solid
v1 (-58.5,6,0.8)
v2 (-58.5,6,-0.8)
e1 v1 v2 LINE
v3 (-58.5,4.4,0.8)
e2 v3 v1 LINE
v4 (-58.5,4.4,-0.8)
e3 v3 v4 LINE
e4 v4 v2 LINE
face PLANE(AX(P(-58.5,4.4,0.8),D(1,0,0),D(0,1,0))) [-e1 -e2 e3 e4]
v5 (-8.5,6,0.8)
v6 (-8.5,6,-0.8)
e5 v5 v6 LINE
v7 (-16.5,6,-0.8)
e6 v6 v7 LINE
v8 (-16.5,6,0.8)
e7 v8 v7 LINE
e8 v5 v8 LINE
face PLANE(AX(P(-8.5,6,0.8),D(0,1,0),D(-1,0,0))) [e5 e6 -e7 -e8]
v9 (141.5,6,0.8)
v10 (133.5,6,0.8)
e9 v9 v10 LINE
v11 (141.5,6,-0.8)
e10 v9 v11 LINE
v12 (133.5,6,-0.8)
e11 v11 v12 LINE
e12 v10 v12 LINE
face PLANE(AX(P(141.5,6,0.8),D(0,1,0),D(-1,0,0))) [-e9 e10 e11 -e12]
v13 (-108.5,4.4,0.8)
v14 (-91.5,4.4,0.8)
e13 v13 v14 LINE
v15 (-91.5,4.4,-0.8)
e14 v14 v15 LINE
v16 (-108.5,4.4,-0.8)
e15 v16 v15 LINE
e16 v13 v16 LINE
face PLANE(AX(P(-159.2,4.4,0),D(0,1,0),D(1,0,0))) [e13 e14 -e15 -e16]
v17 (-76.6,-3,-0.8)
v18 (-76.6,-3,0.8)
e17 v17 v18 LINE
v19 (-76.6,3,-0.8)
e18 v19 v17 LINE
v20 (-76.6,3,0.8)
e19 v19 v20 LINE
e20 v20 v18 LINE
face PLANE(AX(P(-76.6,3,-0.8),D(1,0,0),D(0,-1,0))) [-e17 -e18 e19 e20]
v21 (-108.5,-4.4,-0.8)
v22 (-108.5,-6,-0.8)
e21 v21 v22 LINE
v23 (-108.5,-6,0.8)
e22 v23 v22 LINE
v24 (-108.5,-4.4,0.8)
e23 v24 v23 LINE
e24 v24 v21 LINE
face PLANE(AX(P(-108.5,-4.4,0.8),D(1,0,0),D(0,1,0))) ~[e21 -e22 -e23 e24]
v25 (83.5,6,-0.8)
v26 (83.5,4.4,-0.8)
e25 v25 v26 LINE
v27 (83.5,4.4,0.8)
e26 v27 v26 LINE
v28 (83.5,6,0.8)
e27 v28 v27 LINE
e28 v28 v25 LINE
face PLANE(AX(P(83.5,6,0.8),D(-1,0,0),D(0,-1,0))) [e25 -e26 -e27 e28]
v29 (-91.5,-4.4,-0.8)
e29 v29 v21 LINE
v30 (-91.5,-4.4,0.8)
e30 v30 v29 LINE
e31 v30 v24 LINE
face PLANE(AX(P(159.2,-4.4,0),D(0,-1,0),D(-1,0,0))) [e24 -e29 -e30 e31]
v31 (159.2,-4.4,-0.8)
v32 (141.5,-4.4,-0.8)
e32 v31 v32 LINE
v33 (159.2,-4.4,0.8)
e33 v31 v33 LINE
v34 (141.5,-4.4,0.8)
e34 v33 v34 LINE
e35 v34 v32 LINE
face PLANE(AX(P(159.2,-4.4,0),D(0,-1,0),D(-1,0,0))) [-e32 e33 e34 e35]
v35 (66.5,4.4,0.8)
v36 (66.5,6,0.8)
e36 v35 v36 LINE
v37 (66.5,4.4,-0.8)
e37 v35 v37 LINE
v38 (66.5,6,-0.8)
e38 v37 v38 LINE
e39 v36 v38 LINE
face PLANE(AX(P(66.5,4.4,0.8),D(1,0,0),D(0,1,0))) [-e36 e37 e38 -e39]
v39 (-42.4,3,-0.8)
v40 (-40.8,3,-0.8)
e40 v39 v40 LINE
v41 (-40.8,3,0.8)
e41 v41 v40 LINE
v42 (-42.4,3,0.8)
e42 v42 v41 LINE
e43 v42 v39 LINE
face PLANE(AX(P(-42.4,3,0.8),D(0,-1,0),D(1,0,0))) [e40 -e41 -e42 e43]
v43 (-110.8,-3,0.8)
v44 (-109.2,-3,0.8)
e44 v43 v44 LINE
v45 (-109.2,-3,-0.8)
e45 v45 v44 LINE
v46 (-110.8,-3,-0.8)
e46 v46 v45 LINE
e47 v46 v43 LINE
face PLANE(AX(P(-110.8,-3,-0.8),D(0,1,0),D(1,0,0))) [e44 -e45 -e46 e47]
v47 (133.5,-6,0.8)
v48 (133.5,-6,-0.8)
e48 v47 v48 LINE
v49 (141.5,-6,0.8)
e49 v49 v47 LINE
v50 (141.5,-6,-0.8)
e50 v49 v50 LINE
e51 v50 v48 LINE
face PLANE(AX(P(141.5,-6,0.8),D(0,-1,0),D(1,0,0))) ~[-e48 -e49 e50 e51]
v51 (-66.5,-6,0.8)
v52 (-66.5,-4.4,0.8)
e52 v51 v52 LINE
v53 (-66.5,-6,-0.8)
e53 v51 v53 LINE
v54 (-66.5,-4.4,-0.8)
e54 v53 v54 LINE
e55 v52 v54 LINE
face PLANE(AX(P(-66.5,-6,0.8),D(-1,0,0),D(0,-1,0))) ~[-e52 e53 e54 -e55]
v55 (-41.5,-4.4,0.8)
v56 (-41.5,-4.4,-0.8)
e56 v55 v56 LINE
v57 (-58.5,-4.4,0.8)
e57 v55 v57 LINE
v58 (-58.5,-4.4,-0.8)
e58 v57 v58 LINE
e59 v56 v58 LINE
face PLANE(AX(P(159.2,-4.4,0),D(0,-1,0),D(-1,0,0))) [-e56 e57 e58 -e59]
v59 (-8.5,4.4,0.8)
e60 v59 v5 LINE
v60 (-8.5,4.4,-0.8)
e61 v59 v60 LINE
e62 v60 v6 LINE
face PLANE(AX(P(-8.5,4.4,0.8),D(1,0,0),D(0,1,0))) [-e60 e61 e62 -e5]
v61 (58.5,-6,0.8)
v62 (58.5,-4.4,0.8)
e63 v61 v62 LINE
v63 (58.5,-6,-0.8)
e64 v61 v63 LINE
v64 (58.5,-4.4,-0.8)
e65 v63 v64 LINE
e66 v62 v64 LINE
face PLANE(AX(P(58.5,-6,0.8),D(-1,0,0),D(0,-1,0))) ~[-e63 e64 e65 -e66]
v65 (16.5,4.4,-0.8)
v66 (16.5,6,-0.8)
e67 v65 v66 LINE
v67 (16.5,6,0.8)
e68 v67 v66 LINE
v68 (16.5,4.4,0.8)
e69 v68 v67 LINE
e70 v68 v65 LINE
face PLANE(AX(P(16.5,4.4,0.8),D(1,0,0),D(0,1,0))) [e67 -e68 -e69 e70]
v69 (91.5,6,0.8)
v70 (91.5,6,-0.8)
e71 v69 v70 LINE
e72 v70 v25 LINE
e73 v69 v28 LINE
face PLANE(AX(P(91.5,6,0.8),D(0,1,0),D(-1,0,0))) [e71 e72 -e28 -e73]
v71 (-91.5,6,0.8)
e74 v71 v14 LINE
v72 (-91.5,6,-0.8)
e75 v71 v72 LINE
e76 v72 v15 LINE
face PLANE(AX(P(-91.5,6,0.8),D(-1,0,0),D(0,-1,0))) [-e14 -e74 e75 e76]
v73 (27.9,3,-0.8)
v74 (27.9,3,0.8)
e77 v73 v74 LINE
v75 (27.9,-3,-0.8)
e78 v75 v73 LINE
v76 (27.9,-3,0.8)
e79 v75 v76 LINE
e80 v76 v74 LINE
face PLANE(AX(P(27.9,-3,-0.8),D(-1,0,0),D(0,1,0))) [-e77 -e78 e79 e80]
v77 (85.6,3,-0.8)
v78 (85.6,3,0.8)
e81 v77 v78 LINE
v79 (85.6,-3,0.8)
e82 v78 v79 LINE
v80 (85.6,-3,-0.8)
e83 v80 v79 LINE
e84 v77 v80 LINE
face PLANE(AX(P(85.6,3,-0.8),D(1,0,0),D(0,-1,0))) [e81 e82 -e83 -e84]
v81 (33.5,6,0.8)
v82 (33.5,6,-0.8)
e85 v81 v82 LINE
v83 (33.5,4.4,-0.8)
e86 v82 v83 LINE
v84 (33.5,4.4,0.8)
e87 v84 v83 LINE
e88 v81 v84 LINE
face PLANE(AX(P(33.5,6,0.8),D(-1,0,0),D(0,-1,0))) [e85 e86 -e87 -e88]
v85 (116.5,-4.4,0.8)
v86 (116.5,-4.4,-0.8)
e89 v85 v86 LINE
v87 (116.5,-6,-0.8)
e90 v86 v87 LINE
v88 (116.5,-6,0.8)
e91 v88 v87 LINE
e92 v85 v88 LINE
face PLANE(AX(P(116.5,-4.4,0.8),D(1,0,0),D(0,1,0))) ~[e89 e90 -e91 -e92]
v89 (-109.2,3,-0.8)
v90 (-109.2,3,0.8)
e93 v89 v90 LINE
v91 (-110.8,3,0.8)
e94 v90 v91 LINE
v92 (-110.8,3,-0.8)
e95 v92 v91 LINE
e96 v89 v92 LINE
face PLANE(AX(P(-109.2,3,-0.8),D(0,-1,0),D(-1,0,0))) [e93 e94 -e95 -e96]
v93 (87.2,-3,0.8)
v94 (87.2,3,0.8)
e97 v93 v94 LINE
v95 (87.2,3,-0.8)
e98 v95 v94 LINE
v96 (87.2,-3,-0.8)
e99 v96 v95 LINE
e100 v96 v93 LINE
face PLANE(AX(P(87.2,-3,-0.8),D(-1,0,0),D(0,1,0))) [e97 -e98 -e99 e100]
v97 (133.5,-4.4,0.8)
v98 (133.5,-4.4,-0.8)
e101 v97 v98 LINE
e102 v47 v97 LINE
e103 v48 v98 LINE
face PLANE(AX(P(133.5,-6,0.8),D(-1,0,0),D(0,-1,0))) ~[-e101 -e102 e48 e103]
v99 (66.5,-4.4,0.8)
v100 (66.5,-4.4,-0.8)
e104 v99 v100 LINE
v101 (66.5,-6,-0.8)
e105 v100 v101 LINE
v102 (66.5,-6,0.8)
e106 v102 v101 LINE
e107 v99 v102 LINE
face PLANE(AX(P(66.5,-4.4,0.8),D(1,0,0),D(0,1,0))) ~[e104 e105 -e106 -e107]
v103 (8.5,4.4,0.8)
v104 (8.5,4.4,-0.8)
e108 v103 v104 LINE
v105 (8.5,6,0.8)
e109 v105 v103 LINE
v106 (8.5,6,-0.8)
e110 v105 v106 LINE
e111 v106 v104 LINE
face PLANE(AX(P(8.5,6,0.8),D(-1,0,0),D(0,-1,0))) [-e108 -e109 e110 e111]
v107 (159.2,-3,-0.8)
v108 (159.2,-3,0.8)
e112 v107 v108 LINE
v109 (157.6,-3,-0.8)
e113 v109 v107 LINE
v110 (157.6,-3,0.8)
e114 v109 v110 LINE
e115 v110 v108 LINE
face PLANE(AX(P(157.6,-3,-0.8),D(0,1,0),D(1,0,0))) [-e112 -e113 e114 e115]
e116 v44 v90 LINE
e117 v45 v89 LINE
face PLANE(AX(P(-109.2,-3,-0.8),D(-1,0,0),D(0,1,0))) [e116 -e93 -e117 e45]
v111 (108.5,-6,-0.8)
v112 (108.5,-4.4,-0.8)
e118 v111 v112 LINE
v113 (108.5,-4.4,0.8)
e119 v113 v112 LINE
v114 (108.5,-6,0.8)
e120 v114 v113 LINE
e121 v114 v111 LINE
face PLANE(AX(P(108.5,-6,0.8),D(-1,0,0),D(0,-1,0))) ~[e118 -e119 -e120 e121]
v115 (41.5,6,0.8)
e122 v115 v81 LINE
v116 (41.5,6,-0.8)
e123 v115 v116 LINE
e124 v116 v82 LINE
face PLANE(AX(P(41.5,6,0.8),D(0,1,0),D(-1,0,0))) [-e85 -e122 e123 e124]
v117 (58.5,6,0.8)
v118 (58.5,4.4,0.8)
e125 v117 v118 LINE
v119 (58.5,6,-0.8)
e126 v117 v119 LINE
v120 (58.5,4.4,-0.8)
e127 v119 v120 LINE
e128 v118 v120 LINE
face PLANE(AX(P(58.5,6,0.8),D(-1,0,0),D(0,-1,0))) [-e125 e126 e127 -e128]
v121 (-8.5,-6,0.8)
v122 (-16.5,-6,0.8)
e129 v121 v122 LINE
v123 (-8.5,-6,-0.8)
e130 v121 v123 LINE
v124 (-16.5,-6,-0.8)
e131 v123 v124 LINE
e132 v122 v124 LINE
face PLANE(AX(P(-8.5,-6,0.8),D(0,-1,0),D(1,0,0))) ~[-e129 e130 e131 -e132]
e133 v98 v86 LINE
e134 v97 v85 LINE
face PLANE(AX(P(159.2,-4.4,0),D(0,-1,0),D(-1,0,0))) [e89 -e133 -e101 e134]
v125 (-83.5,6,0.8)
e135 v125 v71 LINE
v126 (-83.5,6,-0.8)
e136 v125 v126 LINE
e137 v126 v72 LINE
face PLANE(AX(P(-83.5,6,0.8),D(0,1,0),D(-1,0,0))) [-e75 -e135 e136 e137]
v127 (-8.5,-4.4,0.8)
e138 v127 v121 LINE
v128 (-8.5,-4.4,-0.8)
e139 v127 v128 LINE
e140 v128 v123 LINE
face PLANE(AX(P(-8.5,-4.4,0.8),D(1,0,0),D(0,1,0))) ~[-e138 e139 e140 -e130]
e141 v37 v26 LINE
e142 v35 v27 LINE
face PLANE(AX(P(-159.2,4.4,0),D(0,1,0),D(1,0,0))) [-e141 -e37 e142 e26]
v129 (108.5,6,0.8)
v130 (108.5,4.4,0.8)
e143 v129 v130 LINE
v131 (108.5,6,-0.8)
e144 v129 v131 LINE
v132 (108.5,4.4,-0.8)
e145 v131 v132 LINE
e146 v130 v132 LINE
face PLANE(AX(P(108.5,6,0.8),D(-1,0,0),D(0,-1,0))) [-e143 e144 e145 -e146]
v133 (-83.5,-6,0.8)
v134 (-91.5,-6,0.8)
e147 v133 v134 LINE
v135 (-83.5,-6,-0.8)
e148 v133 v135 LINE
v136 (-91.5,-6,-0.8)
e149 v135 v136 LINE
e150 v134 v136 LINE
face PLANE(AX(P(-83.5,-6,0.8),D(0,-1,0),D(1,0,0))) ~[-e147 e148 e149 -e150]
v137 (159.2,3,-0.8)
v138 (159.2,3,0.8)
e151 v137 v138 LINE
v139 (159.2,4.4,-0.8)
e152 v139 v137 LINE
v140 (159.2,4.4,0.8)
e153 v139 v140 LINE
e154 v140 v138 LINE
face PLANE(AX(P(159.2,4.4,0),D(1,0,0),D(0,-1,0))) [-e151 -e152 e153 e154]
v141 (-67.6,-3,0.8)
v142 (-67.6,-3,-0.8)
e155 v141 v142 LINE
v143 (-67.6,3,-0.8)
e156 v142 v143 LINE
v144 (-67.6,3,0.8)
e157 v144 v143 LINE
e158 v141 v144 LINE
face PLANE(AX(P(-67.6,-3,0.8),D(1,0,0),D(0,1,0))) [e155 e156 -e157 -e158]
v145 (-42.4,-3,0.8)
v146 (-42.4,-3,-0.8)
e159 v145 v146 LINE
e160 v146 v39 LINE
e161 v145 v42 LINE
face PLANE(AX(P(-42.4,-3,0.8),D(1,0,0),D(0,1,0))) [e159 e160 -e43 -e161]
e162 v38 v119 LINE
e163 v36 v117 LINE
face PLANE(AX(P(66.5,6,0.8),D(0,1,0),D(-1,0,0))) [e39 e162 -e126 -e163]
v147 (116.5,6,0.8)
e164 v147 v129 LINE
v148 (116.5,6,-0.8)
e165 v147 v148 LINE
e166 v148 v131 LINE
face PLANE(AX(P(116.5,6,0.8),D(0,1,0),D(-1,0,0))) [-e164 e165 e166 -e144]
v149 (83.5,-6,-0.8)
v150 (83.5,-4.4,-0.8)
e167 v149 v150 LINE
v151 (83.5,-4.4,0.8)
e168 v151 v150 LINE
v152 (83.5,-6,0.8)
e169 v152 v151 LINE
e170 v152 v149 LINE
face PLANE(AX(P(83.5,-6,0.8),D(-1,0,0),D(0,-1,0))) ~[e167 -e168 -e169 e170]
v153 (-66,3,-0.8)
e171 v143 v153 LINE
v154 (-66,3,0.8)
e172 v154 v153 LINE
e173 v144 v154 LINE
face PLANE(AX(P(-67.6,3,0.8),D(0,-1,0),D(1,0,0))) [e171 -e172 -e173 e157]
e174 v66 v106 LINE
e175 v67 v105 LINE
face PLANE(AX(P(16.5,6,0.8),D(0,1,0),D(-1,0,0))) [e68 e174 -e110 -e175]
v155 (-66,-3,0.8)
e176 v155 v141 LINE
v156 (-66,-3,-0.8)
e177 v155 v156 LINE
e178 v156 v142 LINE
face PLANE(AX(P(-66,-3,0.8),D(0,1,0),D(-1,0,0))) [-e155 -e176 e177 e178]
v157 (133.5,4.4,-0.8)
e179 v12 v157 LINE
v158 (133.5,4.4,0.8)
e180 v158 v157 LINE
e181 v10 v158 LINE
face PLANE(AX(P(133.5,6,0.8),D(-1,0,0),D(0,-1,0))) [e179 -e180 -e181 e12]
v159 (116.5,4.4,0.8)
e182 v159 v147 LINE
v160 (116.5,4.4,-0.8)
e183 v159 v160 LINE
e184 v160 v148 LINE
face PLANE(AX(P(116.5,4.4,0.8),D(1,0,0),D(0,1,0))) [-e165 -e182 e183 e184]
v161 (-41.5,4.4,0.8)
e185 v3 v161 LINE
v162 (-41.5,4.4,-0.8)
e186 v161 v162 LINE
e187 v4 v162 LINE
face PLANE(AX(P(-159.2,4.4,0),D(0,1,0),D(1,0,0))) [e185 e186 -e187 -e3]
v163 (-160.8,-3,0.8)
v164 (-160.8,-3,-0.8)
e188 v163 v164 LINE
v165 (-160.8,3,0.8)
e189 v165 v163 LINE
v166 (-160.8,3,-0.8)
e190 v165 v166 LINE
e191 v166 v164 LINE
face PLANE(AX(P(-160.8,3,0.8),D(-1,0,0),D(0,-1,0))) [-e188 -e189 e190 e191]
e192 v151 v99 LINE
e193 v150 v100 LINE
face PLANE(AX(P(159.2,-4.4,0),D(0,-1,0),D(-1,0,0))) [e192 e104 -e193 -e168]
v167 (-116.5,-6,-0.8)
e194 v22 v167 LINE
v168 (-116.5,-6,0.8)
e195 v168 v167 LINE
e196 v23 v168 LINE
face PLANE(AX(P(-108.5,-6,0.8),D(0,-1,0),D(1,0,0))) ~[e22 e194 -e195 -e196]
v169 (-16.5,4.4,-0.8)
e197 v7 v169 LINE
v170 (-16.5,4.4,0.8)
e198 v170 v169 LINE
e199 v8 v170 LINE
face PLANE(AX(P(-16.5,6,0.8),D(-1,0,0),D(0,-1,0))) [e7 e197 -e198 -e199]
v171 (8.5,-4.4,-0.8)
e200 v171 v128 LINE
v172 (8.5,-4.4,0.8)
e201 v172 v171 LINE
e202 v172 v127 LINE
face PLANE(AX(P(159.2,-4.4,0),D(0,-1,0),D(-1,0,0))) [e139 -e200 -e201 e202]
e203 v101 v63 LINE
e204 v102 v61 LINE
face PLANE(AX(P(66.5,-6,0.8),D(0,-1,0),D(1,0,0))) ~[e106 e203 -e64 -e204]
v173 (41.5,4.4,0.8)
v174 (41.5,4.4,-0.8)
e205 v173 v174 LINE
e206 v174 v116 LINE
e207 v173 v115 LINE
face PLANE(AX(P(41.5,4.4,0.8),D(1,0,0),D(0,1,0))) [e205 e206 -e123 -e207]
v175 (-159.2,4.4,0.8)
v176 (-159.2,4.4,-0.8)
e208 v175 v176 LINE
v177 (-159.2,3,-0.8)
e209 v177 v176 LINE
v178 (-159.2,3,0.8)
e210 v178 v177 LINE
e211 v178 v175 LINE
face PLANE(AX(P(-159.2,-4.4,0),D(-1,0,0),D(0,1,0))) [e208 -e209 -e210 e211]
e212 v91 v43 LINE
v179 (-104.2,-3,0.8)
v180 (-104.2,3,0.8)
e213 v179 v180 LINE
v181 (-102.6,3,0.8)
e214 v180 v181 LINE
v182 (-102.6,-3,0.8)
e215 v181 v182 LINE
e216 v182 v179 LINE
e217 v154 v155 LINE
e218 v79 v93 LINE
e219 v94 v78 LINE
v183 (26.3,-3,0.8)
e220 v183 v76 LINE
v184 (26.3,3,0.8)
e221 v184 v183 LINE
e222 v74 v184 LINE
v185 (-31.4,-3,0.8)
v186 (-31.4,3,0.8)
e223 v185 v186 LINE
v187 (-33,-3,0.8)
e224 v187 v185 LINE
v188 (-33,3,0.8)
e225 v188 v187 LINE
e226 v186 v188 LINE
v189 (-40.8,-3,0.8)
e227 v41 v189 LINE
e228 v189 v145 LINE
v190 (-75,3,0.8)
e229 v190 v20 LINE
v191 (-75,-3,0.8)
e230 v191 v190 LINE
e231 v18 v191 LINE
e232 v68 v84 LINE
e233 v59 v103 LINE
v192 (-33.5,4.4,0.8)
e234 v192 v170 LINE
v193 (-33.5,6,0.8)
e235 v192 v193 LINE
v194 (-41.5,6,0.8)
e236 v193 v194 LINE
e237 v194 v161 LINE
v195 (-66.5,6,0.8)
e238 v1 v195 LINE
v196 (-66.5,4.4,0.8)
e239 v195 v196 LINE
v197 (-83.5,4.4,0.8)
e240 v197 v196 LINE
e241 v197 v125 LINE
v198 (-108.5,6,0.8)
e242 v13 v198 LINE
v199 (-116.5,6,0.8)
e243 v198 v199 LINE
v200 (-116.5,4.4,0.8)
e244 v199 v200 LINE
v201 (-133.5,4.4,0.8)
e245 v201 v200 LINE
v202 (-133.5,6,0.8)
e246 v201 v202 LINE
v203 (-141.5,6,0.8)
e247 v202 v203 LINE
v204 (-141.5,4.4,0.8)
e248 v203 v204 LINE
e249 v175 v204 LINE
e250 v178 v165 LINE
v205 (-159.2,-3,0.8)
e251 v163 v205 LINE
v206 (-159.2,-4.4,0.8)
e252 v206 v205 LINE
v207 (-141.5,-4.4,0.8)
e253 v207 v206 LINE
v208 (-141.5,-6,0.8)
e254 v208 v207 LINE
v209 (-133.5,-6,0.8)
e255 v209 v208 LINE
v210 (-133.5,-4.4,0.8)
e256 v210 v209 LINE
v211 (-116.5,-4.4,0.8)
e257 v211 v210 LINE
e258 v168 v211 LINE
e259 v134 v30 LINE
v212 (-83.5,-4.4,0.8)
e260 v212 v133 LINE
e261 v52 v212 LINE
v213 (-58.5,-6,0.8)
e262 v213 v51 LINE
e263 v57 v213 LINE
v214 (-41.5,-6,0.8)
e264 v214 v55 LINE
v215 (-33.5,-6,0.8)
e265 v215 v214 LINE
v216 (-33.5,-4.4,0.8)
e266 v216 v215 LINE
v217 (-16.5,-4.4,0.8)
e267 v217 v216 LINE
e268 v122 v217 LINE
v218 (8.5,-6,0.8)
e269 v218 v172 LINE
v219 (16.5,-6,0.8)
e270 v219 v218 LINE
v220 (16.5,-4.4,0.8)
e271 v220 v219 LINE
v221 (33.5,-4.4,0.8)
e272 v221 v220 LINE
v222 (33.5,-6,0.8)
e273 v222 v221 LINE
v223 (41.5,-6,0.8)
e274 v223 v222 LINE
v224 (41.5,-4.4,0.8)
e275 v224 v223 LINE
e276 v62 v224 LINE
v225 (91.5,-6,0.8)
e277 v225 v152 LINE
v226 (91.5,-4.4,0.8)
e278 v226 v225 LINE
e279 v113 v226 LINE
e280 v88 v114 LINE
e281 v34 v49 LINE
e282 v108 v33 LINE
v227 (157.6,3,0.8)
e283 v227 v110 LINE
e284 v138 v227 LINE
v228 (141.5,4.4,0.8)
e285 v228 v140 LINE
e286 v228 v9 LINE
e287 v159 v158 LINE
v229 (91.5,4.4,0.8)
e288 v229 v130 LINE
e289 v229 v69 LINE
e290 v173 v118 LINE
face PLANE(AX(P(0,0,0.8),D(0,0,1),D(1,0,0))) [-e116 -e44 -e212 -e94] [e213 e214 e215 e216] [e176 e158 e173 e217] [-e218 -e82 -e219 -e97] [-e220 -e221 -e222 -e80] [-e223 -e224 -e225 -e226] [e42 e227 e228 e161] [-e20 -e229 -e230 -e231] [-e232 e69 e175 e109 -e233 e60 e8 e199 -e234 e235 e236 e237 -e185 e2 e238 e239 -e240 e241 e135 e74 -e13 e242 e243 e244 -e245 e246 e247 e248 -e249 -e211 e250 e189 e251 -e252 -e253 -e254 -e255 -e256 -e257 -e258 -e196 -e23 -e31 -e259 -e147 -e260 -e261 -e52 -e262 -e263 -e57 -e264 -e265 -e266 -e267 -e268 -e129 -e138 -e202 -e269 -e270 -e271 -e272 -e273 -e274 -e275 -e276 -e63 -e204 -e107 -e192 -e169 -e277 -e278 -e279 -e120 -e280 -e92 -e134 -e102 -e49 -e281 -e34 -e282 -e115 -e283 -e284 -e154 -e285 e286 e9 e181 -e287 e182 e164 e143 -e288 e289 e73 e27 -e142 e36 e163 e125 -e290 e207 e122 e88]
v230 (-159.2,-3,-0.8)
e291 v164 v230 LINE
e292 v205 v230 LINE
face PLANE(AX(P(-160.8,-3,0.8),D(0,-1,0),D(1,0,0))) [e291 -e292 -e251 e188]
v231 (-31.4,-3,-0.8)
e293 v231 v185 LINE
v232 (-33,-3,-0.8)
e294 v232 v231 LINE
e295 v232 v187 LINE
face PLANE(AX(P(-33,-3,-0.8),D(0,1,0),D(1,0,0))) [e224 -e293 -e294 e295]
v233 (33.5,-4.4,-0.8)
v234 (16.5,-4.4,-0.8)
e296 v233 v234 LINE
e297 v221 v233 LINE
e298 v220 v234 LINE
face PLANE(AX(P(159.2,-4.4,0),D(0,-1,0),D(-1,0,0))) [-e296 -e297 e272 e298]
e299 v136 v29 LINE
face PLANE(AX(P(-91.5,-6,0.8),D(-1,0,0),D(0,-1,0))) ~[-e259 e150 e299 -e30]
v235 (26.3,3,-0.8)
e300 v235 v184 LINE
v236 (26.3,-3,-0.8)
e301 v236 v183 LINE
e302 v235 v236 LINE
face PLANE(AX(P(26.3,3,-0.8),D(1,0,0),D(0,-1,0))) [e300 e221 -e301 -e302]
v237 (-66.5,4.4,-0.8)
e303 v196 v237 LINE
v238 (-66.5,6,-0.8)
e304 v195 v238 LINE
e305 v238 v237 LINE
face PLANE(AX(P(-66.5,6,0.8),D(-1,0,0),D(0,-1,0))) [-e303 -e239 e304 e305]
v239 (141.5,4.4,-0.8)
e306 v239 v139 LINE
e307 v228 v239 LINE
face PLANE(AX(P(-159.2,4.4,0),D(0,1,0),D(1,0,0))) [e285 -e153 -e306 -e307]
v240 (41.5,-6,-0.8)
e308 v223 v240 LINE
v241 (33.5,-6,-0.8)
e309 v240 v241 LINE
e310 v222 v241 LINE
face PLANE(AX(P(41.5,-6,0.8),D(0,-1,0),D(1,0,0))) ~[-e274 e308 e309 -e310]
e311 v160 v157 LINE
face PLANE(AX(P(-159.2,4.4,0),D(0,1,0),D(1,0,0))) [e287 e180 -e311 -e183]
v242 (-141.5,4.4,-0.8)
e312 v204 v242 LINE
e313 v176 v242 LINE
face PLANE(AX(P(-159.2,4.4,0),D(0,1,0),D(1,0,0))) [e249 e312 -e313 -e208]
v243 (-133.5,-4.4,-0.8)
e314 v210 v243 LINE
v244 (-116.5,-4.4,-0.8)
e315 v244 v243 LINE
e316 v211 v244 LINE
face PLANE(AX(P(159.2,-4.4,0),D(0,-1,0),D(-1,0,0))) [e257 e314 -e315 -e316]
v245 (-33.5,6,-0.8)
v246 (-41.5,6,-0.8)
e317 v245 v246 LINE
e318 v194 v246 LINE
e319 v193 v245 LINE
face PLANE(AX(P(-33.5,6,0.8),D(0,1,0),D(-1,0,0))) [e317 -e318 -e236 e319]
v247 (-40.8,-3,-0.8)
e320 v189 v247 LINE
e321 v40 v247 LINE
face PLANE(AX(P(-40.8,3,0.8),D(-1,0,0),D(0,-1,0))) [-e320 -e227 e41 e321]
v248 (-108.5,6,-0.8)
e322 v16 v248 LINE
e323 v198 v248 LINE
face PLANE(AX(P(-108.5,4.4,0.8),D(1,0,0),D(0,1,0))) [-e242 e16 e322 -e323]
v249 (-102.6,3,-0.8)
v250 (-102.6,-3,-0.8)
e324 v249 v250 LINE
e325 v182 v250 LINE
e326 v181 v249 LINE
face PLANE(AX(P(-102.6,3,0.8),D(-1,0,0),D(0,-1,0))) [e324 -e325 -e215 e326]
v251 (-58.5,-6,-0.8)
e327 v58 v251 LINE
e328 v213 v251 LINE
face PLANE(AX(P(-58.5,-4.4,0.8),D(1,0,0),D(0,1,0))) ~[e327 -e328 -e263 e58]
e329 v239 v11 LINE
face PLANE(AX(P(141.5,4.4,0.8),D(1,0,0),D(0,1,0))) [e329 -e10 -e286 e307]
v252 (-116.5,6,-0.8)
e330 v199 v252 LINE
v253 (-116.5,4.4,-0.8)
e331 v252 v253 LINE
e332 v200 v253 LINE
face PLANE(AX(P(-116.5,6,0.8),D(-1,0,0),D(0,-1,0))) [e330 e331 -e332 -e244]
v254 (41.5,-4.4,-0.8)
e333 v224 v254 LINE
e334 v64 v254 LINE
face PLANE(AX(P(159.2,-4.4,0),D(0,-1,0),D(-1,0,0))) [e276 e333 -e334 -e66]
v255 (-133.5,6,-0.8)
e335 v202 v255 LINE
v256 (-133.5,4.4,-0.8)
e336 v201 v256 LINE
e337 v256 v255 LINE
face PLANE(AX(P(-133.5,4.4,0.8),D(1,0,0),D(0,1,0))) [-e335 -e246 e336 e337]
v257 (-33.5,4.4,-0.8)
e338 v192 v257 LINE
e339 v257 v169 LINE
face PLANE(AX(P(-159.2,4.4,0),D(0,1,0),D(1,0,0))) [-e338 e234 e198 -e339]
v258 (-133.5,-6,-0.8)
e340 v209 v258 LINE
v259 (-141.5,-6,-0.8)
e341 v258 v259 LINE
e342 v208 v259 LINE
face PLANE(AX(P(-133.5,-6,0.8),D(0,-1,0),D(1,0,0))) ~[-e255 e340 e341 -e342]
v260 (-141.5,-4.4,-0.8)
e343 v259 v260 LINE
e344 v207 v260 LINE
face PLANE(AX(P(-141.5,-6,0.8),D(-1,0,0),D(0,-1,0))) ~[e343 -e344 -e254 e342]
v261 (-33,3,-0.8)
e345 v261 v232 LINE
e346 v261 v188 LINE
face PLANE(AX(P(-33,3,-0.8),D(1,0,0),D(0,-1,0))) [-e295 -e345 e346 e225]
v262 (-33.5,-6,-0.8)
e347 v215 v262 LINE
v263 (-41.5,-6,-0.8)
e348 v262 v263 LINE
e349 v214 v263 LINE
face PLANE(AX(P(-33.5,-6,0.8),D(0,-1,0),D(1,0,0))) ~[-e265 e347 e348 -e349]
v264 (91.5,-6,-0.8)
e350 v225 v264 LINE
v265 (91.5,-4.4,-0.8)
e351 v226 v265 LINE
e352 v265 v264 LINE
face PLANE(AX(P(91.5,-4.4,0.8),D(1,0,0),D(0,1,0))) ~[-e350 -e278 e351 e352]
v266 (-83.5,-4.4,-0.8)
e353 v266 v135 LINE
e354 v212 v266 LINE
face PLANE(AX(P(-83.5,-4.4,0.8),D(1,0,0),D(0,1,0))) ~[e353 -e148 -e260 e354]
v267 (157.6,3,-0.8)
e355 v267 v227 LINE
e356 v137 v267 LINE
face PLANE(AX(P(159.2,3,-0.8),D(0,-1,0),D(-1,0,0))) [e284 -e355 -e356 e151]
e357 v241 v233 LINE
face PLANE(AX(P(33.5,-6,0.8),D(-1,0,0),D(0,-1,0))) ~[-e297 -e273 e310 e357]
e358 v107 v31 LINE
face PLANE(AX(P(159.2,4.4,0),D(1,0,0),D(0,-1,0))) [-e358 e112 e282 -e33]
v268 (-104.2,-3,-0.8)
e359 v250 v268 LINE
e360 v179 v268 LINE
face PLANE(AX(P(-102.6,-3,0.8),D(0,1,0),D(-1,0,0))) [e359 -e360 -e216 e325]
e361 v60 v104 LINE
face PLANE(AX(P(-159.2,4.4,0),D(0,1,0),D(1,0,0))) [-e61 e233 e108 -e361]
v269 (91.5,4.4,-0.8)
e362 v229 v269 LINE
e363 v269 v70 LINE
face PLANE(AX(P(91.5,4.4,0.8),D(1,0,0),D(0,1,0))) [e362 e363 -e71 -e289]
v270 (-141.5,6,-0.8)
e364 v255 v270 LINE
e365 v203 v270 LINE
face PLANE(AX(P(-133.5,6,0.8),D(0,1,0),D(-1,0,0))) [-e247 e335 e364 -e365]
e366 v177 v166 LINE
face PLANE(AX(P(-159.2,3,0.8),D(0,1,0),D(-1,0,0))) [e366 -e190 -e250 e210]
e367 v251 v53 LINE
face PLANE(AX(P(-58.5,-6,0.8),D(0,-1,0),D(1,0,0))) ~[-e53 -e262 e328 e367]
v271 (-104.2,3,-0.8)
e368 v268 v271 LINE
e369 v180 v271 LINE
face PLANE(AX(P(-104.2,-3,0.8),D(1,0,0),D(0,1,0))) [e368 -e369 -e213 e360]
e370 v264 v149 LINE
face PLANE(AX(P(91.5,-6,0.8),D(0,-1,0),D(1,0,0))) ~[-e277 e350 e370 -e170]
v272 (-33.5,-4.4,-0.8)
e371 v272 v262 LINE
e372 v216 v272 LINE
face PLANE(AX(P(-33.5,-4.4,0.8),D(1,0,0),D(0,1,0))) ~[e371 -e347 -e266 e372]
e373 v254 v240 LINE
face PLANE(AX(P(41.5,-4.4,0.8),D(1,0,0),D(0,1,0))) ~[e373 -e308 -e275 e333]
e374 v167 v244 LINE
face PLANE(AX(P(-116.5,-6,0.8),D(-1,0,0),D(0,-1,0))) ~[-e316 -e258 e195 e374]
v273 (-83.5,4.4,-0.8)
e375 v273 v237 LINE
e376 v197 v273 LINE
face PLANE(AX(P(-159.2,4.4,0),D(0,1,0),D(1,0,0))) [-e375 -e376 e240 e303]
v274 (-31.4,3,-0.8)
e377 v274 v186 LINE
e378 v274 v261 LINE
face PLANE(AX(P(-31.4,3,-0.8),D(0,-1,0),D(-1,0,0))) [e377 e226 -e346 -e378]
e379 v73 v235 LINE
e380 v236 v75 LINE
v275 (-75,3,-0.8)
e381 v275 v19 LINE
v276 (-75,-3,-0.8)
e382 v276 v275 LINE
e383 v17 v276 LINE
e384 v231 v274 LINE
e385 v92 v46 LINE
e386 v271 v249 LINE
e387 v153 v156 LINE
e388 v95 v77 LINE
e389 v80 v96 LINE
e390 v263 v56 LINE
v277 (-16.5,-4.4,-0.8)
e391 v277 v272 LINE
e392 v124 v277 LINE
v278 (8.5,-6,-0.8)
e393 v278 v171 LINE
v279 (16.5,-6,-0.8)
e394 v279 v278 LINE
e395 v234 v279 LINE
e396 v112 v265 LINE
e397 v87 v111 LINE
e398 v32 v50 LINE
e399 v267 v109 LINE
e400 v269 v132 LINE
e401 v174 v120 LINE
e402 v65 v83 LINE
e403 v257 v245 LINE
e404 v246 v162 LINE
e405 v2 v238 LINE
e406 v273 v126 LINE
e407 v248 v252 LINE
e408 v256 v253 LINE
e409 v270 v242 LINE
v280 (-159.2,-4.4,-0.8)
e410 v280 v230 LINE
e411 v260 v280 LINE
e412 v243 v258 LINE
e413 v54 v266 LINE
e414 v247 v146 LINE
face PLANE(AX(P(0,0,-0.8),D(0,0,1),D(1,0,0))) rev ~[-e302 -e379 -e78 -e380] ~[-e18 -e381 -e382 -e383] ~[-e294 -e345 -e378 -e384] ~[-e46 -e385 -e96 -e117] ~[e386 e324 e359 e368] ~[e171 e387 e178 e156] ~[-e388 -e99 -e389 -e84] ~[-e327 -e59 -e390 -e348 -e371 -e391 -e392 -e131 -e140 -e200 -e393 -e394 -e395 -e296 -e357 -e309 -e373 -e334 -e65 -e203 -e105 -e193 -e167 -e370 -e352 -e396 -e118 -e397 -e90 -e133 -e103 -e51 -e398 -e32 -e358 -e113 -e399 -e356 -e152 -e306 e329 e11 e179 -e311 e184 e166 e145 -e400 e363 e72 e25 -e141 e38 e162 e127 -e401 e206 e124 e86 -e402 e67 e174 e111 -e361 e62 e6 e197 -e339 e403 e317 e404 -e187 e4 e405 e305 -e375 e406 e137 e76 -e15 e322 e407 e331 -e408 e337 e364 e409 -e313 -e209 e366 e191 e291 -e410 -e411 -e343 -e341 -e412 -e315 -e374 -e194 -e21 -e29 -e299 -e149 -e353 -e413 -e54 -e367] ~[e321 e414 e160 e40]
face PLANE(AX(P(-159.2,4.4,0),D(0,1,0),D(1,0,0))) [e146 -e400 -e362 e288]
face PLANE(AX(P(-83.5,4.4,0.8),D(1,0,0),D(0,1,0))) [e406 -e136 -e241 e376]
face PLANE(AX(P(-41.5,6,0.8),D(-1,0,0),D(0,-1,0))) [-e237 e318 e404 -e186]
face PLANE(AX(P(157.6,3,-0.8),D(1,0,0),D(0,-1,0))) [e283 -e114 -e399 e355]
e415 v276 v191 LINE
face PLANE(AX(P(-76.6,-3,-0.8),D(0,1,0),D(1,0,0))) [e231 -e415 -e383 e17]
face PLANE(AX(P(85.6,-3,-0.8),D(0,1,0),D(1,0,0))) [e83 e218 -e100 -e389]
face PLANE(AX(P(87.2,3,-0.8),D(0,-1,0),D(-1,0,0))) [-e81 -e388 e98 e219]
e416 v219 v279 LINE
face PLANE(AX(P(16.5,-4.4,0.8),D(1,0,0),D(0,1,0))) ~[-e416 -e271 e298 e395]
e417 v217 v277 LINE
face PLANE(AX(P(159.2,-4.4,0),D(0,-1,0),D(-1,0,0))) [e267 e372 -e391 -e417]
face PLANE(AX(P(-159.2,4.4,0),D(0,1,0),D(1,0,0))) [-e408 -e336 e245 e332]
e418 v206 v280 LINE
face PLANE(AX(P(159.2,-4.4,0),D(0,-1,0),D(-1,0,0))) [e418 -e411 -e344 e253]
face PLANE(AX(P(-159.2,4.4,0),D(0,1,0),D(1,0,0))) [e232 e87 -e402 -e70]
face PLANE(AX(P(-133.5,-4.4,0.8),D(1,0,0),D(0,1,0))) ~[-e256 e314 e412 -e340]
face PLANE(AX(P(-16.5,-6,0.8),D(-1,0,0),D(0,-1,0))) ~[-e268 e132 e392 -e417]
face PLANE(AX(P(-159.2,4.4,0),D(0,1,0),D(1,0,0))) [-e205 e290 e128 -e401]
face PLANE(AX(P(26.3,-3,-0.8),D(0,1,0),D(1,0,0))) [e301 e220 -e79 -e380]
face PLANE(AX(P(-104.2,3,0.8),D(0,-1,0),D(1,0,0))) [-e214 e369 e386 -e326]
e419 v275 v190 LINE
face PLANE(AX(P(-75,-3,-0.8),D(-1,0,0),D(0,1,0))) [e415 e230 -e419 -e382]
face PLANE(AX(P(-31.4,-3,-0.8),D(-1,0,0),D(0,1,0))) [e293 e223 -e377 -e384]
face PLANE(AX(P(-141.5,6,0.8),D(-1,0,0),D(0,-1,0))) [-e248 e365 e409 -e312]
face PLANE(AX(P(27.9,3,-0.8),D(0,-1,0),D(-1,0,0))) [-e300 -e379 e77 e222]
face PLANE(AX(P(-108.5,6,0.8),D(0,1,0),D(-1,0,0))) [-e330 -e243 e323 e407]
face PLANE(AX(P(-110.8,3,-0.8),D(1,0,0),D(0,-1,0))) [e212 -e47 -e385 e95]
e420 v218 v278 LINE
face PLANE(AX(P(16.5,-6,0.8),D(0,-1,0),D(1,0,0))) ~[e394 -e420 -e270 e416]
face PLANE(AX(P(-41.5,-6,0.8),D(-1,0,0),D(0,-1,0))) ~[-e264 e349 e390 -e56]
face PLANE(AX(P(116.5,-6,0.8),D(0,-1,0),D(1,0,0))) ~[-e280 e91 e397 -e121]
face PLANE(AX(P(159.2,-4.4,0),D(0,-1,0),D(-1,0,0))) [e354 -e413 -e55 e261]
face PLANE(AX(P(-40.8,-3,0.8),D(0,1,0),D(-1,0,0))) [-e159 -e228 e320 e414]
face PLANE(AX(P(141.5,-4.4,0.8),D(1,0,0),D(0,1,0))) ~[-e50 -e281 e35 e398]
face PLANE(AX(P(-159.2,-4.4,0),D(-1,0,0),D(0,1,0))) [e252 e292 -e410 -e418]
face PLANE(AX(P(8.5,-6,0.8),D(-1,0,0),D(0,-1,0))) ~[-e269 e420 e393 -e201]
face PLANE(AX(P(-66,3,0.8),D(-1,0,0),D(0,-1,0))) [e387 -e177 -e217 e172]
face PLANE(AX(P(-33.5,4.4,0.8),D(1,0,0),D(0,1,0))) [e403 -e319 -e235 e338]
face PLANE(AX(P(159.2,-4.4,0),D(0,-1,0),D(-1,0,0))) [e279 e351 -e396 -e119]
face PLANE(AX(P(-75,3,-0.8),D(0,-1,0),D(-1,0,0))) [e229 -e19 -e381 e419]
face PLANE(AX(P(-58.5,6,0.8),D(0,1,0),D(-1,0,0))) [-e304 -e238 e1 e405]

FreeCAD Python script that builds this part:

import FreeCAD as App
import Part
import Sketcher

V = App.Vector


def add_polygon(sketch, points):
    """Adds a closed chain of lines whose ends are joined by coincident constraints."""
    first, n = sketch.GeometryCount, len(points)
    for a, b in zip(points, points[1:] + points[:1]):
        sketch.addGeometry(Part.LineSegment(App.Vector(*a, 0), App.Vector(*b, 0)), False)
    for i in range(n):
        sketch.addConstraint(Sketcher.Constraint("Coincident", first + i, 2, first + (i + 1) % n, 1))

doc = App.newDocument("Part")
body = doc.addObject("PartDesign::Body", "Body")

# Sketch on XY plane
sketch1 = body.newObject("Sketcher::SketchObject", "Sketch")
sketch1.AttachmentSupport = (doc.getObject("XY_Plane"), [""])
sketch1.MapMode = "FlatFace"
add_polygon(sketch1, [(-159, -4), (159, -4), (159, 4), (-159, 4)])  # lines 0-3
sketch1.addConstraint([
    Sketcher.Constraint("Horizontal", 0),
    Sketcher.Constraint("Vertical", 1),
    Sketcher.Constraint("Horizontal", 2),
    Sketcher.Constraint("Vertical", 3),
    Sketcher.Constraint("Symmetric", 0, 2, 2, 2, -1, 1),
    Sketcher.Constraint("DistanceX", 0, 1, 0, 2, 318.4),
    Sketcher.Constraint("DistanceY", 1, 1, 1, 2, 8.8),
])
pad1 = body.newObject("PartDesign::Pad", "Pad")
pad1.Profile = sketch1
pad1.Length = 1.6
pad1.Midplane = True

# Sketch on XY plane
sketch2 = body.newObject("Sketcher::SketchObject", "Sketch001")
sketch2.AttachmentSupport = (doc.getObject("XY_Plane"), [""])
sketch2.MapMode = "FlatFace"
sketch2.AttachmentOffset = App.Placement(V(0, 0, -0.8), App.Rotation())
add_polygon(sketch2, [(87.2, -3), (85.6, -3), (85.6, 3), (87.2, 3)])  # lines 0-3
add_polygon(sketch2, [(159.2, -3), (157.6, -3), (157.6, 3), (159.2, 3)])  # lines 4-7
add_polygon(sketch2, [(27.9, -3), (26.3, -3), (26.3, 3), (27.9, 3)])  # lines 8-11
add_polygon(sketch2, [(-110.8, 3), (-109.2, 3), (-109.2, -3), (-110.8, -3)])  # lines 12-15
add_polygon(sketch2, [(-76.6, 3), (-75, 3), (-75, -3), (-76.6, -3)])  # lines 16-19
add_polygon(sketch2, [(-31.4, -3), (-33, -3), (-33, 3), (-31.4, 3)])  # lines 20-23
sketch2.addConstraint([
    Sketcher.Constraint("Horizontal", 0),
    Sketcher.Constraint("Vertical", 1),
    Sketcher.Constraint("Horizontal", 2),
    Sketcher.Constraint("Vertical", 3),
    Sketcher.Constraint("Horizontal", 4),
    Sketcher.Constraint("Vertical", 5),
    Sketcher.Constraint("Horizontal", 6),
    Sketcher.Constraint("Vertical", 7),
    Sketcher.Constraint("Horizontal", 8),
    Sketcher.Constraint("Vertical", 9),
    Sketcher.Constraint("Horizontal", 10),
    Sketcher.Constraint("Vertical", 11),
    Sketcher.Constraint("Horizontal", 12),
    Sketcher.Constraint("Vertical", 13),
    Sketcher.Constraint("Horizontal", 14),
    Sketcher.Constraint("Vertical", 15),
    Sketcher.Constraint("Horizontal", 16),
    Sketcher.Constraint("Vertical", 17),
    Sketcher.Constraint("Horizontal", 18),
    Sketcher.Constraint("Vertical", 19),
    Sketcher.Constraint("Horizontal", 20),
    Sketcher.Constraint("Vertical", 21),
    Sketcher.Constraint("Horizontal", 22),
    Sketcher.Constraint("Vertical", 23),
    Sketcher.Constraint("Horizontal", 3, 2, 4, 2),
    Sketcher.Constraint("Horizontal", 2, 2, 5, 2),
    Sketcher.Constraint("Horizontal", 7, 2, 8, 2),
    Sketcher.Constraint("Horizontal", 6, 2, 9, 2),
    Sketcher.Constraint("Horizontal", 10, 2, 12, 2),
    Sketcher.Constraint("Horizontal", 11, 2, 13, 2),
    Sketcher.Constraint("Horizontal", 15, 2, 16, 2),
    Sketcher.Constraint("Horizontal", 14, 2, 17, 2),
    Sketcher.Constraint("Horizontal", 18, 2, 20, 2),
    Sketcher.Constraint("Horizontal", 19, 2, 21, 2),
    Sketcher.Constraint("Equal", 2, 4),
    Sketcher.Constraint("Equal", 6, 8),
    Sketcher.Constraint("Equal", 10, 12),
    Sketcher.Constraint("Equal", 14, 16),
    Sketcher.Constraint("Equal", 18, 20),
    Sketcher.Constraint("DistanceY", 1, 1, 1, 2, 6.0),
    Sketcher.Constraint("DistanceX", 0, 2, 0, 1, 1.6),
    Sketcher.Constraint("DistanceY", 0, 2, -1, 1, 3.0),
    Sketcher.Constraint("DistanceX", 16, 2, -1, 1, 75.0),
    Sketcher.Constraint("DistanceX", 20, 2, -1, 1, 33.0),
    Sketcher.Constraint("DistanceX", 0, 2, 4, 2, 72.0),
    Sketcher.Constraint("DistanceX", -1, 1, 0, 2, 85.6),
    Sketcher.Constraint("DistanceX", -1, 1, 8, 2, 26.3),
    Sketcher.Constraint("DistanceX", 12, 2, -1, 1, 109.2),
])
pocket1 = body.newObject("PartDesign::Pocket", "Pocket")
pocket1.Profile = sketch2
pocket1.Length = 1.6
pocket1.Reversed = True

# Sketch on XY plane
sketch3 = body.newObject("Sketcher::SketchObject", "Sketch002")
sketch3.AttachmentSupport = (doc.getObject("XY_Plane"), [""])
sketch3.MapMode = "FlatFace"
sketch3.AttachmentOffset = App.Placement(V(0, 0, 0.8), App.Rotation())
add_polygon(sketch3, [(-104.2, -3), (-102.6, -3), (-102.6, 3), (-104.2, 3)])  # lines 0-3
add_polygon(sketch3, [(-67.6, -3), (-66, -3), (-66, 3), (-67.6, 3)])  # lines 4-7
add_polygon(sketch3, [(-40.8, 3), (-42.4, 3), (-42.4, -3), (-40.8, -3)])  # lines 8-11
sketch3.addConstraint([
    Sketcher.Constraint("Horizontal", 0),
    Sketcher.Constraint("Vertical", 1),
    Sketcher.Constraint("Horizontal", 2),
    Sketcher.Constraint("Vertical", 3),
    Sketcher.Constraint("Horizontal", 4),
    Sketcher.Constraint("Vertical", 5),
    Sketcher.Constraint("Horizontal", 6),
    Sketcher.Constraint("Vertical", 7),
    Sketcher.Constraint("Horizontal", 8),
    Sketcher.Constraint("Vertical", 9),
    Sketcher.Constraint("Horizontal", 10),
    Sketcher.Constraint("Vertical", 11),
    Sketcher.Constraint("Horizontal", 3, 2, 4, 2),
    Sketcher.Constraint("Horizontal", 2, 2, 5, 2),
    Sketcher.Constraint("Horizontal", 6, 2, 8, 2),
    Sketcher.Constraint("Horizontal", 7, 2, 9, 2),
    Sketcher.Constraint("Equal", 2, 4),
    Sketcher.Constraint("Equal", 6, 8),
    Sketcher.Constraint("DistanceY", 1, 1, 1, 2, 6.0),
    Sketcher.Constraint("DistanceX", 0, 1, 0, 2, 1.6),
    Sketcher.Constraint("DistanceY", 0, 2, -1, 1, 3.0),
    Sketcher.Constraint("DistanceX", 4, 2, -1, 1, 66.0),
    Sketcher.Constraint("DistanceX", 1, 2, 6, 2, 35.0),
    Sketcher.Constraint("DistanceX", 8, 2, -1, 1, 42.4),
])
pocket2 = body.newObject("PartDesign::Pocket", "Pocket001")
pocket2.Profile = sketch3
pocket2.Length = 1.6

# Sketch on XY plane
sketch4 = body.newObject("Sketcher::SketchObject", "Sketch003")
sketch4.AttachmentSupport = (doc.getObject("XY_Plane"), [""])
sketch4.MapMode = "FlatFace"
sketch4.AttachmentOffset = App.Placement(V(0, 0, 0.8), App.Rotation())
add_polygon(sketch4, [(-141.5, 6), (-141.5, 4.4), (-133.5, 4.4), (-133.5, 6)])  # lines 0-3
add_polygon(sketch4, [(-116.5, 4.4), (-108.5, 4.4), (-108.5, 6), (-116.5, 6)])  # lines 4-7
add_polygon(sketch4, [(-91.5, 4.4), (-83.5, 4.4), (-83.5, 6), (-91.5, 6)])  # lines 8-11
add_polygon(sketch4, [(-66.5, 4.4), (-58.5, 4.4), (-58.5, 6), (-66.5, 6)])  # lines 12-15
add_polygon(sketch4, [(-41.5, 4.4), (-33.5, 4.4), (-33.5, 6), (-41.5, 6)])  # lines 16-19
add_polygon(sketch4, [(-16.5, 4.4), (-8.5, 4.4), (-8.5, 6), (-16.5, 6)])  # lines 20-23
add_polygon(sketch4, [(8.5, 4.4), (16.5, 4.4), (16.5, 6), (8.5, 6)])  # lines 24-27
add_polygon(sketch4, [(33.5, 4.4), (41.5, 4.4), (41.5, 6), (33.5, 6)])  # lines 28-31
add_polygon(sketch4, [(58.5, 4.4), (66.5, 4.4), (66.5, 6), (58.5, 6)])  # lines 32-35
add_polygon(sketch4, [(83.5, 4.4), (91.5, 4.4), (91.5, 6), (83.5, 6)])  # lines 36-39
add_polygon(sketch4, [(108.5, 4.4), (116.5, 4.4), (116.5, 6), (108.5, 6)])  # lines 40-43
add_polygon(sketch4, [(133.5, 4.4), (141.5, 4.4), (141.5, 6), (133.5, 6)])  # lines 44-47
sketch4.addConstraint([
    Sketcher.Constraint("Vertical", 0),
    Sketcher.Constraint("Horizontal", 1),
    Sketcher.Constraint("Vertical", 2),
    Sketcher.Constraint("Horizontal", 3),
    Sketcher.Constraint("Horizontal", 4),
    Sketcher.Constraint("Vertical", 5),
    Sketcher.Constraint("Horizontal", 6),
    Sketcher.Constraint("Vertical", 7),
    Sketcher.Constraint("Horizontal", 8),
    Sketcher.Constraint("Vertical", 9),
    Sketcher.Constraint("Horizontal", 10),
    Sketcher.Constraint("Vertical", 11),
    Sketcher.Constraint("Horizontal", 12),
    Sketcher.Constraint("Vertical", 13),
    Sketcher.Constraint("Horizontal", 14),
    Sketcher.Constraint("Vertical", 15),
    Sketcher.Constraint("Horizontal", 16),
    Sketcher.Constraint("Vertical", 17),
    Sketcher.Constraint("Horizontal", 18),
    Sketcher.Constraint("Vertical", 19),
    Sketcher.Constraint("Horizontal", 20),
    Sketcher.Constraint("Vertical", 21),
    Sketcher.Constraint("Horizontal", 22),
    Sketcher.Constraint("Vertical", 23),
    Sketcher.Constraint("Horizontal", 24),
    Sketcher.Constraint("Vertical", 25),
    Sketcher.Constraint("Horizontal", 26),
    Sketcher.Constraint("Vertical", 27),
    Sketcher.Constraint("Horizontal", 28),
    Sketcher.Constraint("Vertical", 29),
    Sketcher.Constraint("Horizontal", 30),
    Sketcher.Constraint("Vertical", 31),
    Sketcher.Constraint("Horizontal", 32),
    Sketcher.Constraint("Vertical", 33),
    Sketcher.Constraint("Horizontal", 34),
    Sketcher.Constraint("Vertical", 35),
    Sketcher.Constraint("Horizontal", 36),
    Sketcher.Constraint("Vertical", 37),
    Sketcher.Constraint("Horizontal", 38),
    Sketcher.Constraint("Vertical", 39),
    Sketcher.Constraint("Horizontal", 40),
    Sketcher.Constraint("Vertical", 41),
    Sketcher.Constraint("Horizontal", 42),
    Sketcher.Constraint("Vertical", 43),
    Sketcher.Constraint("Horizontal", 44),
    Sketcher.Constraint("Vertical", 45),
    Sketcher.Constraint("Horizontal", 46),
    Sketcher.Constraint("Vertical", 47),
    Sketcher.Constraint("Symmetric", 23, 2, 24, 2, -2),
    Sketcher.Constraint("Symmetric", 21, 2, 26, 2, -2),
    Sketcher.Constraint("Symmetric", 19, 2, 28, 2, -2),
    Sketcher.Constraint("Symmetric", 17, 2, 30, 2, -2),
    Sketcher.Constraint("Symmetric", 15, 2, 32, 2, -2),
    Sketcher.Constraint("Symmetric", 13, 2, 34, 2, -2),
    Sketcher.Constraint("Symmetric", 11, 2, 36, 2, -2),
    Sketcher.Constraint("Symmetric", 9, 2, 38, 2, -2),
    Sketcher.Constraint("Symmetric", 7, 2, 40, 2, -2),
    Sketcher.Constraint("Symmetric", 5, 2, 42, 2, -2),
    Sketcher.Constraint("Symmetric", 0, 2, 44, 2, -2),
    Sketcher.Constraint("Symmetric", 2, 2, 46, 2, -2),
    Sketcher.Constraint("Horizontal", 1, 2, 4, 2),
    Sketcher.Constraint("Horizontal", 3, 2, 5, 2),
    Sketcher.Constraint("Horizontal", 7, 2, 8, 2),
    Sketcher.Constraint("Horizontal", 6, 2, 9, 2),
    Sketcher.Constraint("Horizontal", 11, 2, 12, 2),
    Sketcher.Constraint("Horizontal", 10, 2, 13, 2),
    Sketcher.Constraint("Horizontal", 15, 2, 16, 2),
    Sketcher.Constraint("Horizontal", 14, 2, 17, 2),
    Sketcher.Constraint("Horizontal", 19, 2, 20, 2),
    Sketcher.Constraint("Horizontal", 18, 2, 21, 2),
    Sketcher.Constraint("Equal", 3, 4),
    Sketcher.Constraint("Equal", 6, 8),
    Sketcher.Constraint("Equal", 10, 12),
    Sketcher.Constraint("Equal", 14, 16),
    Sketcher.Constraint("Equal", 18, 20),
    Sketcher.Constraint("DistanceX", 1, 1, 1, 2, 8.0),
    Sketcher.Constraint("DistanceY", 0, 2, 0, 1, 1.6),
    Sketcher.Constraint("DistanceX", 1, 2, 4, 2, 25.0),
    Sketcher.Constraint("DistanceX", 4, 2, 8, 2, 25.0),
    Sketcher.Constraint("DistanceX", 8, 2, 12, 2, 25.0),
    Sketcher.Constraint("DistanceX", 12, 2, 16, 2, 25.0),
    Sketcher.Constraint("DistanceX", 16, 2, 20, 2, 25.0),
    Sketcher.Constraint("DistanceX", 20, 2, 24, 2, 25.0),
    Sketcher.Constraint("DistanceY", -1, 1, 2, 2, 6.0),
])
pad2 = body.newObject("PartDesign::Pad", "Pad001")
pad2.Profile = sketch4
pad2.Length = 1.6
pad2.Reversed = True
doc.recompute()

mirrored = body.newObject("PartDesign::Mirrored", "Mirrored")
mirrored.Originals = [pad2]
mirrored.MirrorPlane = (doc.getObject("XZ_Plane"), [""])
body.Tip = mirrored

# Sketch on XY plane
sketch5 = body.newObject("Sketcher::SketchObject", "Sketch004")
sketch5.AttachmentSupport = (doc.getObject("XY_Plane"), [""])
sketch5.MapMode = "FlatFace"
sketch5.AttachmentOffset = App.Placement(V(0, 0, 0.8), App.Rotation())
add_polygon(sketch5, [(-159.2, -3), (-159.2, 3), (-160.8, 3), (-160.8, -3)])  # lines 0-3
sketch5.addConstraint([
    Sketcher.Constraint("Vertical", 0),
    Sketcher.Constraint("Horizontal", 1),
    Sketcher.Constraint("Vertical", 2),
    Sketcher.Constraint("Horizontal", 3),
    Sketcher.Constraint("DistanceY", 0, 1, 0, 2, 6.0),
    Sketcher.Constraint("DistanceX", 1, 2, 1, 1, 1.6),
    Sketcher.Constraint("DistanceY", -1, 1, 0, 2, 3.0),
    Sketcher.Constraint("DistanceX", 0, 2, -1, 1, 159.2),
])
pad3 = body.newObject("PartDesign::Pad", "Pad002")
pad3.Profile = sketch5
pad3.Length = 1.6
pad3.Reversed = True

doc.recompute()
